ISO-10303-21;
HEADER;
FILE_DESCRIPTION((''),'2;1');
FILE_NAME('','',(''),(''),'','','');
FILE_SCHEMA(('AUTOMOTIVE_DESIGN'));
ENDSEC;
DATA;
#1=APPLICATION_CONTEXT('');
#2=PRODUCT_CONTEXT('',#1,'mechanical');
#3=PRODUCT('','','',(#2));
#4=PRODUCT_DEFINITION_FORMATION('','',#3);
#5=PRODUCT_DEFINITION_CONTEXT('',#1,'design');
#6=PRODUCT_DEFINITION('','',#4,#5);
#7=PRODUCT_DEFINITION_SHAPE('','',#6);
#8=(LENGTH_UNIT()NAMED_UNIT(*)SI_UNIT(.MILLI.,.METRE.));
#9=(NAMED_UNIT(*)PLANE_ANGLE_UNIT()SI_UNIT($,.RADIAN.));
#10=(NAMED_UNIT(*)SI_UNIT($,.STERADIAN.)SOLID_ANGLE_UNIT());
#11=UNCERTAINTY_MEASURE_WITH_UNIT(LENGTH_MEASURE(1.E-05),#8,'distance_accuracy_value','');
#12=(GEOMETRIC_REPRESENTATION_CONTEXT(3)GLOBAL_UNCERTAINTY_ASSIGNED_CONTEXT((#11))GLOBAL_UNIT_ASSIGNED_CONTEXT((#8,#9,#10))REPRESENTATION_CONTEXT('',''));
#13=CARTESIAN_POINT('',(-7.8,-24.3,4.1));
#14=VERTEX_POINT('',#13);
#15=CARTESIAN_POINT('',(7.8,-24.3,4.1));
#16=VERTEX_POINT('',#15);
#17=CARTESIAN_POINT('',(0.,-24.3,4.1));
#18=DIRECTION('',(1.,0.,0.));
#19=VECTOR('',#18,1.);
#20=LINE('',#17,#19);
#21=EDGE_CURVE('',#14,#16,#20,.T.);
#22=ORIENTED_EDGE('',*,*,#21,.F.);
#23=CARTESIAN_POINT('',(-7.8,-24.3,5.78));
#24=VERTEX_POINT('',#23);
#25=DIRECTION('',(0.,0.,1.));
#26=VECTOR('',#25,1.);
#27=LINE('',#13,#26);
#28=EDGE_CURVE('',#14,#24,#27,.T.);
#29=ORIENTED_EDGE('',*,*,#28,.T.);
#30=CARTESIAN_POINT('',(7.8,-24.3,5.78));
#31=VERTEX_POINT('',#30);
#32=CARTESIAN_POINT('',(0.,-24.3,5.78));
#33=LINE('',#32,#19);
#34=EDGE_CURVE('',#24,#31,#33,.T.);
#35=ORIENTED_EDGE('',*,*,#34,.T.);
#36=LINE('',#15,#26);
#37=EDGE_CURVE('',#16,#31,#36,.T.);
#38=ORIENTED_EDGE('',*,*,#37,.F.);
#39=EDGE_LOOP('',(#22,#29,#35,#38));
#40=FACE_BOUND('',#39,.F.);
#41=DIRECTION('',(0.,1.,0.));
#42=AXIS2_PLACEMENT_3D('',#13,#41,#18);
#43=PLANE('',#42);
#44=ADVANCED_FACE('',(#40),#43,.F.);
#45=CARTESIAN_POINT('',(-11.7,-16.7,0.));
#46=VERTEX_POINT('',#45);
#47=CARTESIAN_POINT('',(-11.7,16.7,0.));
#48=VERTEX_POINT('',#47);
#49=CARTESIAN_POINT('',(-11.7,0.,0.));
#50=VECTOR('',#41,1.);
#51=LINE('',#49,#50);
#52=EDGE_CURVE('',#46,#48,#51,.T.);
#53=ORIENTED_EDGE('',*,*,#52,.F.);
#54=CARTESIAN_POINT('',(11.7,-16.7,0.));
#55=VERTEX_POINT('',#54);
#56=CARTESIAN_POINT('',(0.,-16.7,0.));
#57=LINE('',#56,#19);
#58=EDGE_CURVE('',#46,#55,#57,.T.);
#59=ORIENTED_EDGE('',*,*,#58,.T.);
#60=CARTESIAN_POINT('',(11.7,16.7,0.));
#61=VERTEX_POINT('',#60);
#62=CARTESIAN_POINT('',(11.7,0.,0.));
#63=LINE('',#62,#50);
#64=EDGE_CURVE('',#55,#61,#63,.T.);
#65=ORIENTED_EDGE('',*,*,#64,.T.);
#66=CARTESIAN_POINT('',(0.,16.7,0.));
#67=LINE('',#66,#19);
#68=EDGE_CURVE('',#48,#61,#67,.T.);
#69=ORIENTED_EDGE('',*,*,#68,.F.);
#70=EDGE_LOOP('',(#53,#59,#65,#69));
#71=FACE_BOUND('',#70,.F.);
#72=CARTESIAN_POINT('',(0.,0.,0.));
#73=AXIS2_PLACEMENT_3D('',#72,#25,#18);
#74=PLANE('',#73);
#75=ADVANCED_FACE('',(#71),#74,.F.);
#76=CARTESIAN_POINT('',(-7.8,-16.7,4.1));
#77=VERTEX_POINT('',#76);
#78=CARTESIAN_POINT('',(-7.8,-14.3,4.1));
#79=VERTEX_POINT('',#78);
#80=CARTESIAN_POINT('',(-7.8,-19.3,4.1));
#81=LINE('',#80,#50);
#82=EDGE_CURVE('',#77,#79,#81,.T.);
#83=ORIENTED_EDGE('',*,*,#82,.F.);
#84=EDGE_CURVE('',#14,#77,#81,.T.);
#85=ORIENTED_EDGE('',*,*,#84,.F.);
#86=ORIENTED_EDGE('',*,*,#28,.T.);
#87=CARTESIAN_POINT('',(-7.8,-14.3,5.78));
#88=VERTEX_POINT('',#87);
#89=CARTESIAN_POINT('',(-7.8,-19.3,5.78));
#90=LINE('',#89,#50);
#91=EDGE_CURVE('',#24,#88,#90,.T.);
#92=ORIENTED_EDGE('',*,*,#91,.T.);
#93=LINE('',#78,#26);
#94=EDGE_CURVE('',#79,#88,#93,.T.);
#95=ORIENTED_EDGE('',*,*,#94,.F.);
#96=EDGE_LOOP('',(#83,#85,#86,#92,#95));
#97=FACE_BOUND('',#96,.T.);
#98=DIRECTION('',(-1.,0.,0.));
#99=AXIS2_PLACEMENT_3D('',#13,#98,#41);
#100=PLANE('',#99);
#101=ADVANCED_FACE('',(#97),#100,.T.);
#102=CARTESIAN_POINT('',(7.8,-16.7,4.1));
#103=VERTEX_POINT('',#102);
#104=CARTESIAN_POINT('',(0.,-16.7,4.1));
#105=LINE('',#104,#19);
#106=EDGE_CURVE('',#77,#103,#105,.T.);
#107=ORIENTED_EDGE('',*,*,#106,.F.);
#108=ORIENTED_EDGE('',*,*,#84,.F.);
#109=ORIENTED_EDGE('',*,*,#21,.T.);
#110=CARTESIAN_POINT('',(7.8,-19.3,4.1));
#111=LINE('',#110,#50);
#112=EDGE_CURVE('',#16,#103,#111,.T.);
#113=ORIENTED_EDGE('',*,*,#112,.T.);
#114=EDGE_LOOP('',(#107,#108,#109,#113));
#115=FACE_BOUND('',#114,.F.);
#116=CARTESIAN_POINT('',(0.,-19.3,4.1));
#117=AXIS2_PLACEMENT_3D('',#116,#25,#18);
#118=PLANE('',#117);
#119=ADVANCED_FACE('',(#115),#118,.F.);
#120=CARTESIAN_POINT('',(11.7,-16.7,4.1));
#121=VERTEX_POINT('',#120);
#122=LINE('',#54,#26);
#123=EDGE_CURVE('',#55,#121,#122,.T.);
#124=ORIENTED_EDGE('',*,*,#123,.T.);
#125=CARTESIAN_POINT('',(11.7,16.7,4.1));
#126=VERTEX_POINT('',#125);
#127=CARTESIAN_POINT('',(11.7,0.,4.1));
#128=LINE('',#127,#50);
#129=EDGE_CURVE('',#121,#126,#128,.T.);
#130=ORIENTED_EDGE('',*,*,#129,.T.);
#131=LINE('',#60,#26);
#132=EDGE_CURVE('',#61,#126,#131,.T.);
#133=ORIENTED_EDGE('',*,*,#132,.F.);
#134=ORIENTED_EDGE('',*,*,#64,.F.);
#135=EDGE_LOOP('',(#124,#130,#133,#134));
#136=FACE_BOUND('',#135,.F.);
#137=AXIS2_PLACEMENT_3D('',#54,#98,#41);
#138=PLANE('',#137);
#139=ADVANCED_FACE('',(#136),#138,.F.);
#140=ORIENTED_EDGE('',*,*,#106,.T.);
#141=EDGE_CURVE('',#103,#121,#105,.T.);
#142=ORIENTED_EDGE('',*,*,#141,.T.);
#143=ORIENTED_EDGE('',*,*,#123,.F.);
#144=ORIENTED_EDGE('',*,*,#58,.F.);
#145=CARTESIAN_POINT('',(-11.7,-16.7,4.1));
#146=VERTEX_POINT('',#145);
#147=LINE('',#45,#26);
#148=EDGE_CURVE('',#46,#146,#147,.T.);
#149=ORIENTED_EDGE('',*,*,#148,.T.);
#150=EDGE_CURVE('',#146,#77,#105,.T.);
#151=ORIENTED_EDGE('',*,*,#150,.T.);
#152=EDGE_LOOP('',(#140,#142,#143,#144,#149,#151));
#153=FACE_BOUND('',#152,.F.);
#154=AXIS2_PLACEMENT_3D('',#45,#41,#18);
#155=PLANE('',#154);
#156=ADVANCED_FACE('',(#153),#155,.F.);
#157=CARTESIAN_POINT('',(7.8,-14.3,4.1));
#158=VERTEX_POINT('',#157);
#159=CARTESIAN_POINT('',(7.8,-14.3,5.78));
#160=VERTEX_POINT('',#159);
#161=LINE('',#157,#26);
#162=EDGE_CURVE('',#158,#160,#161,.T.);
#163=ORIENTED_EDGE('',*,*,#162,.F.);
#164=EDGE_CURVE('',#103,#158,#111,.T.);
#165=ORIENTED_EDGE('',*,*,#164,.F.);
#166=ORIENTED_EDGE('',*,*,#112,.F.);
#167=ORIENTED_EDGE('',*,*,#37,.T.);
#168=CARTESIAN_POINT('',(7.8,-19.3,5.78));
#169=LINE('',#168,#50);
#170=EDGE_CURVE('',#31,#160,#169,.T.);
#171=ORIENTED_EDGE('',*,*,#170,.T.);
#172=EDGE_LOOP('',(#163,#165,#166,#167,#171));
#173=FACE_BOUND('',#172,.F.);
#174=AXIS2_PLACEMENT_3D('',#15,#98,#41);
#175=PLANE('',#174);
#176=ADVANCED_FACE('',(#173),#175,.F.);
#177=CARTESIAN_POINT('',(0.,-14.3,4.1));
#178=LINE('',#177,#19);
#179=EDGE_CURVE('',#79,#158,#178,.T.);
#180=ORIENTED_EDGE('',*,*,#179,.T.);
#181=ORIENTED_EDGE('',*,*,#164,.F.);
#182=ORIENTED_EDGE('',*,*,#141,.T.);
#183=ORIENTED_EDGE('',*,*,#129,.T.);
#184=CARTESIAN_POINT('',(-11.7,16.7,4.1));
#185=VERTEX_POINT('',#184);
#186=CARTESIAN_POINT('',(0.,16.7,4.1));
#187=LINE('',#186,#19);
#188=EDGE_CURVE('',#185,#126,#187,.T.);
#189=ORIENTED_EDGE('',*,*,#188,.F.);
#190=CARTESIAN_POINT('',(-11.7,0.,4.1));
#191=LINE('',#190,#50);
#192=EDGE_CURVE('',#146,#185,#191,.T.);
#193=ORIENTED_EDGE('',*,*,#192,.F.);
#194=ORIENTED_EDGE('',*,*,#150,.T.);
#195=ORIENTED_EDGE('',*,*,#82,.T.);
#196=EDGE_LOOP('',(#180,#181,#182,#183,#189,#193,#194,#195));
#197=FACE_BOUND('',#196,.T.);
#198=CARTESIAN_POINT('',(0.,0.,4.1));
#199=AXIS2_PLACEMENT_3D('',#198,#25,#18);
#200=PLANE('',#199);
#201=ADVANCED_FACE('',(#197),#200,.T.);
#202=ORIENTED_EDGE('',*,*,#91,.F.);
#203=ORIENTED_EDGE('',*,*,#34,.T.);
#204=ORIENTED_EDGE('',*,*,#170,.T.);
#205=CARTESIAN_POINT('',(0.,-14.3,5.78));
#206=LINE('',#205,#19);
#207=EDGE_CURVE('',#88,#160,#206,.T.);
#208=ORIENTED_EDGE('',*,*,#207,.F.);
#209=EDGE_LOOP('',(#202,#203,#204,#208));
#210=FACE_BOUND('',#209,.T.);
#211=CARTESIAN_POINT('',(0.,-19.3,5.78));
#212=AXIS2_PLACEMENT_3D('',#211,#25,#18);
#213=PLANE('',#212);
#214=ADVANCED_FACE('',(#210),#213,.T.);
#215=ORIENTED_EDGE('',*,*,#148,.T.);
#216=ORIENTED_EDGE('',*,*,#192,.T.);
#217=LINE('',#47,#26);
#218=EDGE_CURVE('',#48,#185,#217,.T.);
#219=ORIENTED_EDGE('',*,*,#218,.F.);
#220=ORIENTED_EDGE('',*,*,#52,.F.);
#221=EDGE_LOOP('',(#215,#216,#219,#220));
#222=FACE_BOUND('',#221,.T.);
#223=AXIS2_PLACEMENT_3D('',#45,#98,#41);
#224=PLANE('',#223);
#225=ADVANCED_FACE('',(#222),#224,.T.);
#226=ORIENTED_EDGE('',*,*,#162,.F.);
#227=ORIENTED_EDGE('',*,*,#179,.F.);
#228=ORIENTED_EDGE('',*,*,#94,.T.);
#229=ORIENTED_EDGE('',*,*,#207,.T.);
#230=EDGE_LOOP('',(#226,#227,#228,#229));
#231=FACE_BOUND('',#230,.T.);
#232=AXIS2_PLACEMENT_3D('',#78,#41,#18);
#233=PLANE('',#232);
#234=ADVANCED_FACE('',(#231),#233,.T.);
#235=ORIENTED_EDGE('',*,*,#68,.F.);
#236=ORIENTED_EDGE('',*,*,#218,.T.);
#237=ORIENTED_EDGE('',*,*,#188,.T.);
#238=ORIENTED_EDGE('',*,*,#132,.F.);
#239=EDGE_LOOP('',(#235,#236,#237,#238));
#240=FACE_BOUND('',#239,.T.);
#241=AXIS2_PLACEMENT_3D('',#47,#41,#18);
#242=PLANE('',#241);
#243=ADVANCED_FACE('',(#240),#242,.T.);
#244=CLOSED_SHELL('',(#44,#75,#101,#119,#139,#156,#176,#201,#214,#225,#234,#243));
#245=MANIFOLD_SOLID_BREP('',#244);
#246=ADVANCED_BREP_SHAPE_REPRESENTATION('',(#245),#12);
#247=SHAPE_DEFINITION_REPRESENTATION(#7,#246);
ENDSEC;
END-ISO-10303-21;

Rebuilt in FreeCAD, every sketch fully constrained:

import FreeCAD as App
import Part
import Sketcher

doc = App.newDocument("Part")
body = doc.addObject("PartDesign::Body", "Body")

# Sketch on XY plane
sketch1 = doc.addObject("Sketcher::SketchObject", "Sketch")
body.addObject(sketch1)
sketch1.AttachmentSupport = (doc.XY_Plane, [""])
sketch1.MapMode = "FlatFace"
sketch1.addGeometry([
    Part.LineSegment(App.Vector(-12, 17, 0), App.Vector(-12, -17, 0)),
    Part.LineSegment(App.Vector(-12, -17, 0), App.Vector(12, -17, 0)),
    Part.LineSegment(App.Vector(12, -17, 0), App.Vector(12, 17, 0)),
    Part.LineSegment(App.Vector(12, 17, 0), App.Vector(-12, 17, 0)),
], False)
sketch1.addConstraint([
    Sketcher.Constraint("Coincident", 0, 2, 1, 1),
    Sketcher.Constraint("Coincident", 1, 2, 2, 1),
    Sketcher.Constraint("Coincident", 2, 2, 3, 1),
    Sketcher.Constraint("Coincident", 3, 2, 0, 1),
    Sketcher.Constraint("Vertical", 0),
    Sketcher.Constraint("Horizontal", 1),
    Sketcher.Constraint("Vertical", 2),
    Sketcher.Constraint("Horizontal", 3),
    Sketcher.Constraint("Symmetric", 0, 2, 2, 2, -1, 1),
    Sketcher.Constraint("DistanceX", 1, 1, 1, 2, 23.4),
    Sketcher.Constraint("DistanceY", 0, 2, 0, 1, 33.4),
])
pad1 = doc.addObject("PartDesign::Pad", "Pad")
body.addObject(pad1)
pad1.Profile = sketch1
pad1.Length = 4.1

# Sketch on XY plane
sketch2 = doc.addObject("Sketcher::SketchObject", "Sketch001")
body.addObject(sketch2)
sketch2.AttachmentSupport = (doc.XY_Plane, [""])
sketch2.MapMode = "FlatFace"
sketch2.AttachmentOffset = App.Placement(App.Vector(0, 0, 4.1), App.Rotation())
sketch2.addGeometry([
    Part.LineSegment(App.Vector(-8, -14, 0), App.Vector(-8, -24, 0)),
    Part.LineSegment(App.Vector(-8, -24, 0), App.Vector(8, -24, 0)),
    Part.LineSegment(App.Vector(8, -24, 0), App.Vector(8, -14, 0)),
    Part.LineSegment(App.Vector(8, -14, 0), App.Vector(-8, -14, 0)),
], False)
sketch2.addConstraint([
    Sketcher.Constraint("Coincident", 0, 2, 1, 1),
    Sketcher.Constraint("Coincident", 1, 2, 2, 1),
    Sketcher.Constraint("Coincident", 2, 2, 3, 1),
    Sketcher.Constraint("Coincident", 3, 2, 0, 1),
    Sketcher.Constraint("Vertical", 0),
    Sketcher.Constraint("Horizontal", 1),
    Sketcher.Constraint("Vertical", 2),
    Sketcher.Constraint("Horizontal", 3),
    Sketcher.Constraint("DistanceY", 0, 2, 0, 1, 10.0),
    Sketcher.Constraint("DistanceX", 1, 1, 1, 2, 15.6),
    Sketcher.Constraint("DistanceX", 0, 2, -1, 1, 7.8),
    Sketcher.Constraint("DistanceY", 0, 2, -1, 1, 24.3),
])
pad2 = doc.addObject("PartDesign::Pad", "Pad001")
body.addObject(pad2)
pad2.Profile = sketch2
pad2.Length = 1.68

doc.recompute()
